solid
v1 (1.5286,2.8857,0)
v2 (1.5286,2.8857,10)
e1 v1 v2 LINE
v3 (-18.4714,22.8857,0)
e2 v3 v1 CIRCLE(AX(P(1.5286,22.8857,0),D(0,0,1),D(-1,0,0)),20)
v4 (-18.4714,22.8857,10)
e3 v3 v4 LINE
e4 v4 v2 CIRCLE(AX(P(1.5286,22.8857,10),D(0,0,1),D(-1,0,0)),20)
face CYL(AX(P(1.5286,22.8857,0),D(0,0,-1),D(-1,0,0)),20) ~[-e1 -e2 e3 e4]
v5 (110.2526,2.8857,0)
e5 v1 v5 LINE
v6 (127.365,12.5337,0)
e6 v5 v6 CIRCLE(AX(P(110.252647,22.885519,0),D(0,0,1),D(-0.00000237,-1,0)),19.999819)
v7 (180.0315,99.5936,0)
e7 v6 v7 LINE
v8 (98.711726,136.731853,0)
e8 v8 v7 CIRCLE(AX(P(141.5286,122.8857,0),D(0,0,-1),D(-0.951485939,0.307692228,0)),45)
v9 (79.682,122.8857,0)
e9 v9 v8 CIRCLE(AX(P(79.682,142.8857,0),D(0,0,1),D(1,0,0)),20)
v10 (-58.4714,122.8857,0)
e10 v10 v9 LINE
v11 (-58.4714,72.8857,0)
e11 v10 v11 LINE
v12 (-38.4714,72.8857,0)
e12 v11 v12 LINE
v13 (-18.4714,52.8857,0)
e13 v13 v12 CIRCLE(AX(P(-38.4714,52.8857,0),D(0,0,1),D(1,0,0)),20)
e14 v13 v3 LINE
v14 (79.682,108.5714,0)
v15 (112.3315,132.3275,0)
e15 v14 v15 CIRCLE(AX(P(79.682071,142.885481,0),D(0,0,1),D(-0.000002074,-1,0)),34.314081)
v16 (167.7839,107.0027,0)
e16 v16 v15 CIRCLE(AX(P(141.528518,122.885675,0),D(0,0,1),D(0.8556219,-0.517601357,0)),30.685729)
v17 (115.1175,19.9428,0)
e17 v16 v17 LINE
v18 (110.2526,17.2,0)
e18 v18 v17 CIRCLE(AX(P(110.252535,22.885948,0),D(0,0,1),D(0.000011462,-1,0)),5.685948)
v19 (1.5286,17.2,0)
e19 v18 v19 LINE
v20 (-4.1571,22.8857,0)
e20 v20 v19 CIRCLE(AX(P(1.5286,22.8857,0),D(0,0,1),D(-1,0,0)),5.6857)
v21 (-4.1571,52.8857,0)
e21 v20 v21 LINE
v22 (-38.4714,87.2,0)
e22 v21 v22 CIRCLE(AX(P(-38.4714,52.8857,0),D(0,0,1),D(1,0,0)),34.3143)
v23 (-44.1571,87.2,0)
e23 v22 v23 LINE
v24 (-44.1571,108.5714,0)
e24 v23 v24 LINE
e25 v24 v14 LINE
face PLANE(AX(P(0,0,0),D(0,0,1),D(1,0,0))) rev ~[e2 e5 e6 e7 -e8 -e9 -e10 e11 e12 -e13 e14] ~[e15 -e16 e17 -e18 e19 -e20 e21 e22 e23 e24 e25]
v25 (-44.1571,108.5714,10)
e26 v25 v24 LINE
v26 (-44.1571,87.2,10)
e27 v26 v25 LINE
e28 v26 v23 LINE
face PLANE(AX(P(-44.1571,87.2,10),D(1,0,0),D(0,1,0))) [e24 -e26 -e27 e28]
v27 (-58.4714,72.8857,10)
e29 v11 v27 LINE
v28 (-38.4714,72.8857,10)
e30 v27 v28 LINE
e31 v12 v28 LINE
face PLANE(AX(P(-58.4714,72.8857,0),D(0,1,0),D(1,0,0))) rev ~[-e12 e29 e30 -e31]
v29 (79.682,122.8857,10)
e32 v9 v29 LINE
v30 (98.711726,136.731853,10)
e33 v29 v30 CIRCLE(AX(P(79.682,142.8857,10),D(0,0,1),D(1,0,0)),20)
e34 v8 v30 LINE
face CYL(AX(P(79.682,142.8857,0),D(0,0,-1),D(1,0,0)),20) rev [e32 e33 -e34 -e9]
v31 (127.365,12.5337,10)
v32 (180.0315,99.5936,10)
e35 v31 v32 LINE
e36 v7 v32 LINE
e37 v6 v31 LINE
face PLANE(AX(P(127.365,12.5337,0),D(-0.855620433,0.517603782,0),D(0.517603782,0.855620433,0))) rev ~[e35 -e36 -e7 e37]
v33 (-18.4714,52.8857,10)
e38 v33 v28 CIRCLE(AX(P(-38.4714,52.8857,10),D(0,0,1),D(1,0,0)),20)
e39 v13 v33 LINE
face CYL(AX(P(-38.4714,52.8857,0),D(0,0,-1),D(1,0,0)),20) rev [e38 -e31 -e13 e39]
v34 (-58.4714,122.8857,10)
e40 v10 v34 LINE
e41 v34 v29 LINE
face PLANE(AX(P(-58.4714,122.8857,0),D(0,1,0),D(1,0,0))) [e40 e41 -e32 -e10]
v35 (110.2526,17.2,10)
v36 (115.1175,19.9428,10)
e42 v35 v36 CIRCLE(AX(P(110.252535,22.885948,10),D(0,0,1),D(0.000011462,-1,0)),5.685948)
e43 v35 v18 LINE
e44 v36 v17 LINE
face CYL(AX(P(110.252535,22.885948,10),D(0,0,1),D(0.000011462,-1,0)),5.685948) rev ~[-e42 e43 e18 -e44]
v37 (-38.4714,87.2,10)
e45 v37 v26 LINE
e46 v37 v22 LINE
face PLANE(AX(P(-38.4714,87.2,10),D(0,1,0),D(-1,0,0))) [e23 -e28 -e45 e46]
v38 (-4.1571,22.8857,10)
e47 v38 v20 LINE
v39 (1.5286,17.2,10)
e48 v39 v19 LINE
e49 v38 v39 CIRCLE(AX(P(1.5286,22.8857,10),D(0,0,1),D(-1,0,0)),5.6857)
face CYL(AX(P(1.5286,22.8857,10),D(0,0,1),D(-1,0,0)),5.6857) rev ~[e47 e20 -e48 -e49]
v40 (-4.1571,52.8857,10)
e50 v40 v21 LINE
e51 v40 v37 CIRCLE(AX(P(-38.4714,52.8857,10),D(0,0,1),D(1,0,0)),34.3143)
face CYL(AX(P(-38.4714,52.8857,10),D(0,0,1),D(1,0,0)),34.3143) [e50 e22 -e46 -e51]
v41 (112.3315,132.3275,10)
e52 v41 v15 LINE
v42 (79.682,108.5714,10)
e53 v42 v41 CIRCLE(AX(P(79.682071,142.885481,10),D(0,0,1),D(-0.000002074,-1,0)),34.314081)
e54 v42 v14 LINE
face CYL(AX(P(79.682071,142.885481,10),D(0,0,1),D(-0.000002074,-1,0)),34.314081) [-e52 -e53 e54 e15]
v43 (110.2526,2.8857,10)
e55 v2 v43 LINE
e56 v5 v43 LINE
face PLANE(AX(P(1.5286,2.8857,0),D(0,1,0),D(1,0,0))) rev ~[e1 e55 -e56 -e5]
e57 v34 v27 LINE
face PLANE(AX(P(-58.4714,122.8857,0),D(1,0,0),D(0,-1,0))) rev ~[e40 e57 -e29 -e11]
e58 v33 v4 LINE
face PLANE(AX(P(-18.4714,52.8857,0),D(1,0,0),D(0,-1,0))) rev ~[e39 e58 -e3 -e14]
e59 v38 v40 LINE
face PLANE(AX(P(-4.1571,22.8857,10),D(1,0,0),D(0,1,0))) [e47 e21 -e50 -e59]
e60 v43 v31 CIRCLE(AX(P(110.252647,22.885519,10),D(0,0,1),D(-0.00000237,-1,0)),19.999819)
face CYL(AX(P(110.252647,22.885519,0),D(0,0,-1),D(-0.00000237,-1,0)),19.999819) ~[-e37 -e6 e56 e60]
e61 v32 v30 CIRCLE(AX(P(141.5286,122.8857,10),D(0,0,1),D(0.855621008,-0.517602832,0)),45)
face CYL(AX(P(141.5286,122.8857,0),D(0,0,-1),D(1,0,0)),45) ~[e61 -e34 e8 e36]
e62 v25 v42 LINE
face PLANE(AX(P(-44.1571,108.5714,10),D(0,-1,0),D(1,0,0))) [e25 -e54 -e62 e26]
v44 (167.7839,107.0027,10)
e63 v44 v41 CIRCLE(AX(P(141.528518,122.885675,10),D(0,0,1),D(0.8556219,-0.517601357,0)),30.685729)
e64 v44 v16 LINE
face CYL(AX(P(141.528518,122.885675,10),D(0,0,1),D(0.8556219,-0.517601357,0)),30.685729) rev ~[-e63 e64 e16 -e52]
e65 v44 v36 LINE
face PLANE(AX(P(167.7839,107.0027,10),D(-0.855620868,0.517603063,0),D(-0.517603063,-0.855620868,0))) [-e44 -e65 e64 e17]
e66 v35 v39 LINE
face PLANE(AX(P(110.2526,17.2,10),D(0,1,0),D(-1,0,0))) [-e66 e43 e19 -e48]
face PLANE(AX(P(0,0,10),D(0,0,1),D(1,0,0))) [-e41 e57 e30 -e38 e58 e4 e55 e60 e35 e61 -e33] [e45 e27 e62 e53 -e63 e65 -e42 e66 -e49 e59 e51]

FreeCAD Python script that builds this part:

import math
import FreeCAD as App
import Part
import Sketcher
Q = App.Units.Quantity

doc = App.newDocument("Part")
body = doc.addObject("PartDesign::Body", "Body")

sketch1 = body.newObject("Sketcher::SketchObject", "Sketch")
sketch1.AttachmentSupport = (doc.getObject("XY_Plane"), [""])
sketch1.MapMode = "FlatFace"
sketch1.addGeometry(Part.LineSegment(App.Vector(80, 123, 0), App.Vector(-58, 123, 0)), False)
sketch1.addGeometry(Part.LineSegment(App.Vector(-58, 123, 0), App.Vector(-58, 73, 0)), False)
sketch1.addGeometry(Part.LineSegment(App.Vector(-58, 73, 0), App.Vector(-38, 73, 0)), False)
sketch1.addGeometry(Part.ArcOfCircle(Part.Circle(App.Vector(-38, 53, 0), App.Vector(0, 0, 1), 20), math.radians(0), math.radians(90)), False)
sketch1.addGeometry(Part.LineSegment(App.Vector(-18, 53, 0), App.Vector(-18, 23, 0)), False)
sketch1.addGeometry(Part.ArcOfCircle(Part.Circle(App.Vector(2, 23, 0), App.Vector(0, 0, 1), 20), math.radians(180), math.radians(270)), False)
sketch1.addGeometry(Part.LineSegment(App.Vector(2, 3, 0), App.Vector(110, 3, 0)), False)
sketch1.addGeometry(Part.ArcOfCircle(Part.Circle(App.Vector(110, 23, 0), App.Vector(0, 0, 1), 20), math.radians(-90), math.radians(-31)), False)
sketch1.addGeometry(Part.LineSegment(App.Vector(127, 13, 0), App.Vector(180, 100, 0)), False)
sketch1.addGeometry(Part.ArcOfCircle(Part.Circle(App.Vector(142, 123, 0), App.Vector(0, 0, 1), 45), math.radians(-31), math.radians(162)), False)
sketch1.addGeometry(Part.ArcOfCircle(Part.Circle(App.Vector(80, 143, 0), App.Vector(0, 0, 1), 20), math.radians(-90), math.radians(-18)), False)
sketch1.addConstraint(Sketcher.Constraint("Coincident", 0, 2, 1, 1))
sketch1.addConstraint(Sketcher.Constraint("Coincident", 1, 2, 2, 1))
sketch1.addConstraint(Sketcher.Constraint("Tangent", 2, 2, 3, 2))
sketch1.addConstraint(Sketcher.Constraint("Tangent", 3, 1, 4, 1))
sketch1.addConstraint(Sketcher.Constraint("Tangent", 4, 2, 5, 1))
sketch1.addConstraint(Sketcher.Constraint("Tangent", 5, 2, 6, 1))
sketch1.addConstraint(Sketcher.Constraint("Tangent", 6, 2, 7, 1))
sketch1.addConstraint(Sketcher.Constraint("Tangent", 7, 2, 8, 1))
sketch1.addConstraint(Sketcher.Constraint("Tangent", 8, 2, 9, 1))
sketch1.addConstraint(Sketcher.Constraint("Tangent", 9, 2, 10, 2))
sketch1.addConstraint(Sketcher.Constraint("Tangent", 10, 1, 0, 1))
sketch1.addConstraint(Sketcher.Constraint("Horizontal", 0))
sketch1.addConstraint(Sketcher.Constraint("Vertical", 1))
sketch1.addConstraint(Sketcher.Constraint("Horizontal", 2))
sketch1.addConstraint(Sketcher.Constraint("Vertical", 4))
sketch1.addConstraint(Sketcher.Constraint("Horizontal", 6))
sketch1.addConstraint(Sketcher.Constraint("Equal", 3, 5))
sketch1.addConstraint(Sketcher.Constraint("Equal", 5, 7))
sketch1.addConstraint(Sketcher.Constraint("Equal", 7, 10))
sketch1.addConstraint(Sketcher.Constraint("Horizontal", 9, 3, 0, 2))
sketch1.addConstraint(Sketcher.Constraint("Radius", 3, Q("20 mm")))
sketch1.addConstraint(Sketcher.Constraint("Radius", 9, Q("45 mm")))
sketch1.addConstraint(Sketcher.Constraint("DistanceX", 2, 1, 2, 2, Q("20 mm")))
sketch1.addConstraint(Sketcher.Constraint("DistanceY", 1, 2, 1, 1, Q("50 mm")))
sketch1.addConstraint(Sketcher.Constraint("DistanceX", 3, 3, 9, 3, Q("180 mm")))
sketch1.addConstraint(Sketcher.Constraint("DistanceY", 7, 3, 10, 3, Q("120 mm")))
sketch1.addConstraint(Sketcher.Constraint("DistanceX", 6, 1, 6, 2, Q("108.724 mm")))
sketch1.addConstraint(Sketcher.Constraint("DistanceX", -1, 1, 10, 3, Q("79.682 mm")))
sketch1.addConstraint(Sketcher.Constraint("DistanceY", -1, 1, 3, 3, Q("52.8857 mm")))
pad1 = body.newObject("PartDesign::Pad", "Pad")
pad1.Profile = sketch1
pad1.Length = 10

sketch2 = body.newObject("Sketcher::SketchObject", "Sketch001")
sketch2.AttachmentSupport = (doc.getObject("XY_Plane"), [""])
sketch2.MapMode = "FlatFace"
sketch2.AttachmentOffset = App.Placement(App.Vector(0, 0, 10), App.Rotation())
sketch2.addGeometry(Part.LineSegment(App.Vector(80, 109, 0), App.Vector(-44, 109, 0)), False)
sketch2.addGeometry(Part.LineSegment(App.Vector(-44, 109, 0), App.Vector(-44, 87, 0)), False)
sketch2.addGeometry(Part.LineSegment(App.Vector(-44, 87, 0), App.Vector(-38, 87, 0)), False)
sketch2.addGeometry(Part.ArcOfCircle(Part.Circle(App.Vector(-38, 53, 0), App.Vector(0, 0, 1), 34), math.radians(0), math.radians(90)), False)
sketch2.addGeometry(Part.LineSegment(App.Vector(-4, 53, 0), App.Vector(-4, 23, 0)), False)
sketch2.addGeometry(Part.ArcOfCircle(Part.Circle(App.Vector(2, 23, 0), App.Vector(0, 0, 1), 6), math.radians(180), math.radians(270)), False)
sketch2.addGeometry(Part.LineSegment(App.Vector(2, 17, 0), App.Vector(110, 17, 0)), False)
sketch2.addGeometry(Part.ArcOfCircle(Part.Circle(App.Vector(110, 23, 0), App.Vector(0, 0, 1), 6), math.radians(-90), math.radians(-31)), False)
sketch2.addGeometry(Part.LineSegment(App.Vector(115, 20, 0), App.Vector(168, 107, 0)), False)
sketch2.addGeometry(Part.ArcOfCircle(Part.Circle(App.Vector(142, 123, 0), App.Vector(0, 0, 1), 31), math.radians(-31), math.radians(162)), False)
sketch2.addGeometry(Part.ArcOfCircle(Part.Circle(App.Vector(80, 143, 0), App.Vector(0, 0, 1), 34), math.radians(-90), math.radians(-18)), False)
sketch2.addConstraint(Sketcher.Constraint("Coincident", 0, 2, 1, 1))
sketch2.addConstraint(Sketcher.Constraint("Coincident", 1, 2, 2, 1))
sketch2.addConstraint(Sketcher.Constraint("Tangent", 2, 2, 3, 2))
sketch2.addConstraint(Sketcher.Constraint("Tangent", 3, 1, 4, 1))
sketch2.addConstraint(Sketcher.Constraint("Tangent", 4, 2, 5, 1))
sketch2.addConstraint(Sketcher.Constraint("Tangent", 5, 2, 6, 1))
sketch2.addConstraint(Sketcher.Constraint("Tangent", 6, 2, 7, 1))
sketch2.addConstraint(Sketcher.Constraint("Tangent", 7, 2, 8, 1))
sketch2.addConstraint(Sketcher.Constraint("Tangent", 8, 2, 9, 1))
sketch2.addConstraint(Sketcher.Constraint("Tangent", 9, 2, 10, 2))
sketch2.addConstraint(Sketcher.Constraint("Tangent", 10, 1, 0, 1))
sketch2.addConstraint(Sketcher.Constraint("Horizontal", 0))
sketch2.addConstraint(Sketcher.Constraint("Vertical", 1))
sketch2.addConstraint(Sketcher.Constraint("Horizontal", 2))
sketch2.addConstraint(Sketcher.Constraint("Vertical", 4))
sketch2.addConstraint(Sketcher.Constraint("Horizontal", 6))
sketch2.addConstraint(Sketcher.Constraint("Equal", 5, 7))
sketch2.addConstraint(Sketcher.Constraint("Equal", 3, 10))
sketch2.addConstraint(Sketcher.Constraint("DistanceY", 4, 2, 4, 1, Q("30 mm")))
sketch2.addConstraint(Sketcher.Constraint("DistanceX", 3, 3, 5, 3, Q("40 mm")))
sketch2.addConstraint(Sketcher.Constraint("DistanceY", 7, 3, 9, 3, Q("100 mm")))
sketch2.addConstraint(Sketcher.Constraint("DistanceX", 5, 3, 9, 3, Q("140 mm")))
sketch2.addConstraint(Sketcher.Constraint("DistanceY", 9, 3, 10, 3, Q("20 mm")))
sketch2.addConstraint(Sketcher.Constraint("DistanceX", 1, 2, 3, 1, Q("40 mm")))
sketch2.addConstraint(Sketcher.Constraint("DistanceY", -1, 1, 1, 2, Q("87.2 mm")))
sketch2.addConstraint(Sketcher.Constraint("Radius", 3, Q("34.3143 mm")))
sketch2.addConstraint(Sketcher.Constraint("Radius", 9, Q("30.6857 mm")))
sketch2.addConstraint(Sketcher.Constraint("DistanceX", 6, 1, 6, 2, Q("108.724 mm")))
sketch2.addConstraint(Sketcher.Constraint("DistanceX", -1, 1, 10, 3, Q("79.682 mm")))
pocket1 = body.newObject("PartDesign::Pocket", "Pocket")
pocket1.Profile = sketch2
pocket1.Type = "ThroughAll"

doc.recompute()
